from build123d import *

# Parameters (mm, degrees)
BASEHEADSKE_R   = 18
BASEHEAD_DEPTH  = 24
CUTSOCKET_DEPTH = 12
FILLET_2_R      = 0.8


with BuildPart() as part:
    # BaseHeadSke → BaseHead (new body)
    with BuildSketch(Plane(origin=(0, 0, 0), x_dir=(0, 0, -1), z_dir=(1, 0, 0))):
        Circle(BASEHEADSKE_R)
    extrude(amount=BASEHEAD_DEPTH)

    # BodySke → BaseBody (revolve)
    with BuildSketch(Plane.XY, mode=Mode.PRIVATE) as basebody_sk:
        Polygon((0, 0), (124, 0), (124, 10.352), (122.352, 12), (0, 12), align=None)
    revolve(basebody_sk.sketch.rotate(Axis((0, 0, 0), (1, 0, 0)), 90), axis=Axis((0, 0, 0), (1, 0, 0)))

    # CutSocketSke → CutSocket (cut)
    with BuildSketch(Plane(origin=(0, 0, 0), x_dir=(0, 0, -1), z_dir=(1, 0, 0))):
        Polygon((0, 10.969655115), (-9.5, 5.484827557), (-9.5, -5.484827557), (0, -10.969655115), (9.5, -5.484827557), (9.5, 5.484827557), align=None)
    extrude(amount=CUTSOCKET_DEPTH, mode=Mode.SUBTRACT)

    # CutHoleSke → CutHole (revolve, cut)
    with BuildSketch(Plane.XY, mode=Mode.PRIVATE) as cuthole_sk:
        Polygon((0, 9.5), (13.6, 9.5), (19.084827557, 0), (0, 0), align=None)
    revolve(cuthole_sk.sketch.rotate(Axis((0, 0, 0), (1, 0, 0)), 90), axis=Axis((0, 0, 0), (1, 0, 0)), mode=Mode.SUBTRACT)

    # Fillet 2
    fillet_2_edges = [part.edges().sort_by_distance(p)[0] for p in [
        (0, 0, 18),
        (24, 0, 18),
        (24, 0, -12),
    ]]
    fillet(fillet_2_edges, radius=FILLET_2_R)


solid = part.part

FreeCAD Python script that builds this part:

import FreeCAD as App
import Part
import Sketcher

V = App.Vector
Q = App.Units.Quantity


def edges_at(feature, points):
    """Names of the edges that pass closest to the given points."""
    edges = feature.Shape.Edges
    near = lambda p: min(range(len(edges)), key=lambda i: edges[i].distToShape(Part.Vertex(*p))[0])
    return sorted({f"Edge{near(p) + 1}" for p in points})

doc = App.newDocument("Part")
body = doc.addObject("PartDesign::Body", "Body")

sketch1 = body.newObject("Sketcher::SketchObject", "Sketch")
sketch1.AttachmentSupport = (doc.getObject("YZ_Plane"), [""])
sketch1.MapMode = "FlatFace"
sketch1.addGeometry(Part.Circle(V(0, 0, 0), V(0, 0, 1), 18), False)
sketch1.addConstraint([
    Sketcher.Constraint("Coincident", 0, 3, -1, 1),
    Sketcher.Constraint("Diameter", 0, Q("36 mm")),
])
pad1 = body.newObject("PartDesign::Pad", "Pad")
pad1.Profile = sketch1
pad1.Length = 24

sketch2 = body.newObject("Sketcher::SketchObject", "Sketch001")
sketch2.AttachmentSupport = (doc.getObject("XY_Plane"), [""])
sketch2.MapMode = "FlatFace"
sketch2.addGeometry([
    Part.LineSegment(V(0, 0, 0), V(124, 0, 0)),
    Part.LineSegment(V(124, 0, 0), V(124, 10.4, 0)),
    Part.LineSegment(V(124, 10.4, 0), V(122.4, 12, 0)),
    Part.LineSegment(V(122.4, 12, 0), V(0, 12, 0)),
    Part.LineSegment(V(0, 12, 0), V(0, 0, 0)),
], False)
sketch2.addConstraint([
    Sketcher.Constraint("Coincident", 0, 2, 1, 1),
    Sketcher.Constraint("Coincident", 1, 2, 2, 1),
    Sketcher.Constraint("Coincident", 2, 2, 3, 1),
    Sketcher.Constraint("Coincident", 3, 2, 4, 1),
    Sketcher.Constraint("Coincident", 4, 2, 0, 1),
    Sketcher.Constraint("Horizontal", 0),
    Sketcher.Constraint("Vertical", 1),
    Sketcher.Constraint("Horizontal", 3),
    Sketcher.Constraint("Vertical", 4),
    Sketcher.Constraint("Coincident", 4, 2, -1, 1),
    Sketcher.Constraint("DistanceX", 0, 1, 0, 2, Q("124 mm")),
    Sketcher.Constraint("DistanceY", 4, 2, 4, 1, Q("12 mm")),
    Sketcher.Constraint("Angle", 2, Q("135 deg")),
    Sketcher.Constraint("DistanceX", 3, 2, 3, 1, Q("122.352 mm")),
])
revolution = body.newObject("PartDesign::Revolution", "Revolution")
revolution.Profile = sketch2
revolution.ReferenceAxis = (sketch2, ["H_Axis"])
revolution.Angle = 360

sketch3 = body.newObject("Sketcher::SketchObject", "Sketch002")
sketch3.AttachmentSupport = (doc.getObject("YZ_Plane"), [""])
sketch3.MapMode = "FlatFace"
sketch3.addGeometry([
    Part.LineSegment(V(11, 0, 0), V(5, 10, 0)),
    Part.LineSegment(V(5, 10, 0), V(-5, 10, 0)),
    Part.LineSegment(V(-5, 10, 0), V(-11, 0, 0)),
    Part.LineSegment(V(-11, 0, 0), V(-5, -10, 0)),
    Part.LineSegment(V(-5, -10, 0), V(5, -10, 0)),
    Part.LineSegment(V(5, -10, 0), V(11, 0, 0)),
], False)
sketch3.addConstraint([
    Sketcher.Constraint("Coincident", 0, 2, 1, 1),
    Sketcher.Constraint("Coincident", 1, 2, 2, 1),
    Sketcher.Constraint("Coincident", 2, 2, 3, 1),
    Sketcher.Constraint("Coincident", 3, 2, 4, 1),
    Sketcher.Constraint("Coincident", 4, 2, 5, 1),
    Sketcher.Constraint("Coincident", 5, 2, 0, 1),
    Sketcher.Constraint("Horizontal", 1),
    Sketcher.Constraint("Horizontal", 4),
    Sketcher.Constraint("Symmetric", 0, 2, 3, 2, -1, 1),
    Sketcher.Constraint("Symmetric", 2, 2, 5, 2, -1, 1),
    Sketcher.Constraint("PointOnObject", 2, 2, -1),
    Sketcher.Constraint("Parallel", 2, 5),
    Sketcher.Constraint("Vertical", 1, 2, 3, 2),
    Sketcher.Constraint("Angle", 0, Q("120 deg")),
    Sketcher.Constraint("DistanceY", 3, 2, 1, 2, Q("19 mm")),
    Sketcher.Constraint("DistanceX", 1, 2, 1, 1, Q("10.969655 mm")),
])
pocket1 = body.newObject("PartDesign::Pocket", "Pocket")
pocket1.Profile = sketch3
pocket1.Length = 12
pocket1.Reversed = True

sketch4 = body.newObject("Sketcher::SketchObject", "Sketch003")
sketch4.AttachmentSupport = (doc.getObject("XY_Plane"), [""])
sketch4.MapMode = "FlatFace"
sketch4.addGeometry([
    Part.LineSegment(V(14, 10, 0), V(0, 10, 0)),
    Part.LineSegment(V(0, 10, 0), V(0, 0, 0)),
    Part.LineSegment(V(0, 0, 0), V(19, 0, 0)),
    Part.LineSegment(V(19, 0, 0), V(14, 10, 0)),
], False)
sketch4.addConstraint([
    Sketcher.Constraint("Coincident", 0, 2, 1, 1),
    Sketcher.Constraint("Coincident", 1, 2, 2, 1),
    Sketcher.Constraint("Coincident", 2, 2, 3, 1),
    Sketcher.Constraint("Coincident", 3, 2, 0, 1),
    Sketcher.Constraint("Horizontal", 0),
    Sketcher.Constraint("Vertical", 1),
    Sketcher.Constraint("Horizontal", 2),
    Sketcher.Constraint("Coincident", 1, 2, -1, 1),
    Sketcher.Constraint("Angle", 3, Q("120 deg")),
    Sketcher.Constraint("DistanceX", 0, 2, 0, 1, Q("13.6 mm")),
    Sketcher.Constraint("DistanceY", 1, 2, 1, 1, Q("9.5 mm")),
])
groove = body.newObject("PartDesign::Groove", "Groove")
groove.Profile = sketch4
groove.ReferenceAxis = (sketch4, ["H_Axis"])
groove.Angle = 360
doc.recompute()

fillet = body.newObject("PartDesign::Fillet", "Fillet")
fillet.Base = (groove, edges_at(groove, [(0, 0, 18), (24, 0, 18), (24, 0, -12)]))
fillet.Radius = 0.8

doc.recompute()
